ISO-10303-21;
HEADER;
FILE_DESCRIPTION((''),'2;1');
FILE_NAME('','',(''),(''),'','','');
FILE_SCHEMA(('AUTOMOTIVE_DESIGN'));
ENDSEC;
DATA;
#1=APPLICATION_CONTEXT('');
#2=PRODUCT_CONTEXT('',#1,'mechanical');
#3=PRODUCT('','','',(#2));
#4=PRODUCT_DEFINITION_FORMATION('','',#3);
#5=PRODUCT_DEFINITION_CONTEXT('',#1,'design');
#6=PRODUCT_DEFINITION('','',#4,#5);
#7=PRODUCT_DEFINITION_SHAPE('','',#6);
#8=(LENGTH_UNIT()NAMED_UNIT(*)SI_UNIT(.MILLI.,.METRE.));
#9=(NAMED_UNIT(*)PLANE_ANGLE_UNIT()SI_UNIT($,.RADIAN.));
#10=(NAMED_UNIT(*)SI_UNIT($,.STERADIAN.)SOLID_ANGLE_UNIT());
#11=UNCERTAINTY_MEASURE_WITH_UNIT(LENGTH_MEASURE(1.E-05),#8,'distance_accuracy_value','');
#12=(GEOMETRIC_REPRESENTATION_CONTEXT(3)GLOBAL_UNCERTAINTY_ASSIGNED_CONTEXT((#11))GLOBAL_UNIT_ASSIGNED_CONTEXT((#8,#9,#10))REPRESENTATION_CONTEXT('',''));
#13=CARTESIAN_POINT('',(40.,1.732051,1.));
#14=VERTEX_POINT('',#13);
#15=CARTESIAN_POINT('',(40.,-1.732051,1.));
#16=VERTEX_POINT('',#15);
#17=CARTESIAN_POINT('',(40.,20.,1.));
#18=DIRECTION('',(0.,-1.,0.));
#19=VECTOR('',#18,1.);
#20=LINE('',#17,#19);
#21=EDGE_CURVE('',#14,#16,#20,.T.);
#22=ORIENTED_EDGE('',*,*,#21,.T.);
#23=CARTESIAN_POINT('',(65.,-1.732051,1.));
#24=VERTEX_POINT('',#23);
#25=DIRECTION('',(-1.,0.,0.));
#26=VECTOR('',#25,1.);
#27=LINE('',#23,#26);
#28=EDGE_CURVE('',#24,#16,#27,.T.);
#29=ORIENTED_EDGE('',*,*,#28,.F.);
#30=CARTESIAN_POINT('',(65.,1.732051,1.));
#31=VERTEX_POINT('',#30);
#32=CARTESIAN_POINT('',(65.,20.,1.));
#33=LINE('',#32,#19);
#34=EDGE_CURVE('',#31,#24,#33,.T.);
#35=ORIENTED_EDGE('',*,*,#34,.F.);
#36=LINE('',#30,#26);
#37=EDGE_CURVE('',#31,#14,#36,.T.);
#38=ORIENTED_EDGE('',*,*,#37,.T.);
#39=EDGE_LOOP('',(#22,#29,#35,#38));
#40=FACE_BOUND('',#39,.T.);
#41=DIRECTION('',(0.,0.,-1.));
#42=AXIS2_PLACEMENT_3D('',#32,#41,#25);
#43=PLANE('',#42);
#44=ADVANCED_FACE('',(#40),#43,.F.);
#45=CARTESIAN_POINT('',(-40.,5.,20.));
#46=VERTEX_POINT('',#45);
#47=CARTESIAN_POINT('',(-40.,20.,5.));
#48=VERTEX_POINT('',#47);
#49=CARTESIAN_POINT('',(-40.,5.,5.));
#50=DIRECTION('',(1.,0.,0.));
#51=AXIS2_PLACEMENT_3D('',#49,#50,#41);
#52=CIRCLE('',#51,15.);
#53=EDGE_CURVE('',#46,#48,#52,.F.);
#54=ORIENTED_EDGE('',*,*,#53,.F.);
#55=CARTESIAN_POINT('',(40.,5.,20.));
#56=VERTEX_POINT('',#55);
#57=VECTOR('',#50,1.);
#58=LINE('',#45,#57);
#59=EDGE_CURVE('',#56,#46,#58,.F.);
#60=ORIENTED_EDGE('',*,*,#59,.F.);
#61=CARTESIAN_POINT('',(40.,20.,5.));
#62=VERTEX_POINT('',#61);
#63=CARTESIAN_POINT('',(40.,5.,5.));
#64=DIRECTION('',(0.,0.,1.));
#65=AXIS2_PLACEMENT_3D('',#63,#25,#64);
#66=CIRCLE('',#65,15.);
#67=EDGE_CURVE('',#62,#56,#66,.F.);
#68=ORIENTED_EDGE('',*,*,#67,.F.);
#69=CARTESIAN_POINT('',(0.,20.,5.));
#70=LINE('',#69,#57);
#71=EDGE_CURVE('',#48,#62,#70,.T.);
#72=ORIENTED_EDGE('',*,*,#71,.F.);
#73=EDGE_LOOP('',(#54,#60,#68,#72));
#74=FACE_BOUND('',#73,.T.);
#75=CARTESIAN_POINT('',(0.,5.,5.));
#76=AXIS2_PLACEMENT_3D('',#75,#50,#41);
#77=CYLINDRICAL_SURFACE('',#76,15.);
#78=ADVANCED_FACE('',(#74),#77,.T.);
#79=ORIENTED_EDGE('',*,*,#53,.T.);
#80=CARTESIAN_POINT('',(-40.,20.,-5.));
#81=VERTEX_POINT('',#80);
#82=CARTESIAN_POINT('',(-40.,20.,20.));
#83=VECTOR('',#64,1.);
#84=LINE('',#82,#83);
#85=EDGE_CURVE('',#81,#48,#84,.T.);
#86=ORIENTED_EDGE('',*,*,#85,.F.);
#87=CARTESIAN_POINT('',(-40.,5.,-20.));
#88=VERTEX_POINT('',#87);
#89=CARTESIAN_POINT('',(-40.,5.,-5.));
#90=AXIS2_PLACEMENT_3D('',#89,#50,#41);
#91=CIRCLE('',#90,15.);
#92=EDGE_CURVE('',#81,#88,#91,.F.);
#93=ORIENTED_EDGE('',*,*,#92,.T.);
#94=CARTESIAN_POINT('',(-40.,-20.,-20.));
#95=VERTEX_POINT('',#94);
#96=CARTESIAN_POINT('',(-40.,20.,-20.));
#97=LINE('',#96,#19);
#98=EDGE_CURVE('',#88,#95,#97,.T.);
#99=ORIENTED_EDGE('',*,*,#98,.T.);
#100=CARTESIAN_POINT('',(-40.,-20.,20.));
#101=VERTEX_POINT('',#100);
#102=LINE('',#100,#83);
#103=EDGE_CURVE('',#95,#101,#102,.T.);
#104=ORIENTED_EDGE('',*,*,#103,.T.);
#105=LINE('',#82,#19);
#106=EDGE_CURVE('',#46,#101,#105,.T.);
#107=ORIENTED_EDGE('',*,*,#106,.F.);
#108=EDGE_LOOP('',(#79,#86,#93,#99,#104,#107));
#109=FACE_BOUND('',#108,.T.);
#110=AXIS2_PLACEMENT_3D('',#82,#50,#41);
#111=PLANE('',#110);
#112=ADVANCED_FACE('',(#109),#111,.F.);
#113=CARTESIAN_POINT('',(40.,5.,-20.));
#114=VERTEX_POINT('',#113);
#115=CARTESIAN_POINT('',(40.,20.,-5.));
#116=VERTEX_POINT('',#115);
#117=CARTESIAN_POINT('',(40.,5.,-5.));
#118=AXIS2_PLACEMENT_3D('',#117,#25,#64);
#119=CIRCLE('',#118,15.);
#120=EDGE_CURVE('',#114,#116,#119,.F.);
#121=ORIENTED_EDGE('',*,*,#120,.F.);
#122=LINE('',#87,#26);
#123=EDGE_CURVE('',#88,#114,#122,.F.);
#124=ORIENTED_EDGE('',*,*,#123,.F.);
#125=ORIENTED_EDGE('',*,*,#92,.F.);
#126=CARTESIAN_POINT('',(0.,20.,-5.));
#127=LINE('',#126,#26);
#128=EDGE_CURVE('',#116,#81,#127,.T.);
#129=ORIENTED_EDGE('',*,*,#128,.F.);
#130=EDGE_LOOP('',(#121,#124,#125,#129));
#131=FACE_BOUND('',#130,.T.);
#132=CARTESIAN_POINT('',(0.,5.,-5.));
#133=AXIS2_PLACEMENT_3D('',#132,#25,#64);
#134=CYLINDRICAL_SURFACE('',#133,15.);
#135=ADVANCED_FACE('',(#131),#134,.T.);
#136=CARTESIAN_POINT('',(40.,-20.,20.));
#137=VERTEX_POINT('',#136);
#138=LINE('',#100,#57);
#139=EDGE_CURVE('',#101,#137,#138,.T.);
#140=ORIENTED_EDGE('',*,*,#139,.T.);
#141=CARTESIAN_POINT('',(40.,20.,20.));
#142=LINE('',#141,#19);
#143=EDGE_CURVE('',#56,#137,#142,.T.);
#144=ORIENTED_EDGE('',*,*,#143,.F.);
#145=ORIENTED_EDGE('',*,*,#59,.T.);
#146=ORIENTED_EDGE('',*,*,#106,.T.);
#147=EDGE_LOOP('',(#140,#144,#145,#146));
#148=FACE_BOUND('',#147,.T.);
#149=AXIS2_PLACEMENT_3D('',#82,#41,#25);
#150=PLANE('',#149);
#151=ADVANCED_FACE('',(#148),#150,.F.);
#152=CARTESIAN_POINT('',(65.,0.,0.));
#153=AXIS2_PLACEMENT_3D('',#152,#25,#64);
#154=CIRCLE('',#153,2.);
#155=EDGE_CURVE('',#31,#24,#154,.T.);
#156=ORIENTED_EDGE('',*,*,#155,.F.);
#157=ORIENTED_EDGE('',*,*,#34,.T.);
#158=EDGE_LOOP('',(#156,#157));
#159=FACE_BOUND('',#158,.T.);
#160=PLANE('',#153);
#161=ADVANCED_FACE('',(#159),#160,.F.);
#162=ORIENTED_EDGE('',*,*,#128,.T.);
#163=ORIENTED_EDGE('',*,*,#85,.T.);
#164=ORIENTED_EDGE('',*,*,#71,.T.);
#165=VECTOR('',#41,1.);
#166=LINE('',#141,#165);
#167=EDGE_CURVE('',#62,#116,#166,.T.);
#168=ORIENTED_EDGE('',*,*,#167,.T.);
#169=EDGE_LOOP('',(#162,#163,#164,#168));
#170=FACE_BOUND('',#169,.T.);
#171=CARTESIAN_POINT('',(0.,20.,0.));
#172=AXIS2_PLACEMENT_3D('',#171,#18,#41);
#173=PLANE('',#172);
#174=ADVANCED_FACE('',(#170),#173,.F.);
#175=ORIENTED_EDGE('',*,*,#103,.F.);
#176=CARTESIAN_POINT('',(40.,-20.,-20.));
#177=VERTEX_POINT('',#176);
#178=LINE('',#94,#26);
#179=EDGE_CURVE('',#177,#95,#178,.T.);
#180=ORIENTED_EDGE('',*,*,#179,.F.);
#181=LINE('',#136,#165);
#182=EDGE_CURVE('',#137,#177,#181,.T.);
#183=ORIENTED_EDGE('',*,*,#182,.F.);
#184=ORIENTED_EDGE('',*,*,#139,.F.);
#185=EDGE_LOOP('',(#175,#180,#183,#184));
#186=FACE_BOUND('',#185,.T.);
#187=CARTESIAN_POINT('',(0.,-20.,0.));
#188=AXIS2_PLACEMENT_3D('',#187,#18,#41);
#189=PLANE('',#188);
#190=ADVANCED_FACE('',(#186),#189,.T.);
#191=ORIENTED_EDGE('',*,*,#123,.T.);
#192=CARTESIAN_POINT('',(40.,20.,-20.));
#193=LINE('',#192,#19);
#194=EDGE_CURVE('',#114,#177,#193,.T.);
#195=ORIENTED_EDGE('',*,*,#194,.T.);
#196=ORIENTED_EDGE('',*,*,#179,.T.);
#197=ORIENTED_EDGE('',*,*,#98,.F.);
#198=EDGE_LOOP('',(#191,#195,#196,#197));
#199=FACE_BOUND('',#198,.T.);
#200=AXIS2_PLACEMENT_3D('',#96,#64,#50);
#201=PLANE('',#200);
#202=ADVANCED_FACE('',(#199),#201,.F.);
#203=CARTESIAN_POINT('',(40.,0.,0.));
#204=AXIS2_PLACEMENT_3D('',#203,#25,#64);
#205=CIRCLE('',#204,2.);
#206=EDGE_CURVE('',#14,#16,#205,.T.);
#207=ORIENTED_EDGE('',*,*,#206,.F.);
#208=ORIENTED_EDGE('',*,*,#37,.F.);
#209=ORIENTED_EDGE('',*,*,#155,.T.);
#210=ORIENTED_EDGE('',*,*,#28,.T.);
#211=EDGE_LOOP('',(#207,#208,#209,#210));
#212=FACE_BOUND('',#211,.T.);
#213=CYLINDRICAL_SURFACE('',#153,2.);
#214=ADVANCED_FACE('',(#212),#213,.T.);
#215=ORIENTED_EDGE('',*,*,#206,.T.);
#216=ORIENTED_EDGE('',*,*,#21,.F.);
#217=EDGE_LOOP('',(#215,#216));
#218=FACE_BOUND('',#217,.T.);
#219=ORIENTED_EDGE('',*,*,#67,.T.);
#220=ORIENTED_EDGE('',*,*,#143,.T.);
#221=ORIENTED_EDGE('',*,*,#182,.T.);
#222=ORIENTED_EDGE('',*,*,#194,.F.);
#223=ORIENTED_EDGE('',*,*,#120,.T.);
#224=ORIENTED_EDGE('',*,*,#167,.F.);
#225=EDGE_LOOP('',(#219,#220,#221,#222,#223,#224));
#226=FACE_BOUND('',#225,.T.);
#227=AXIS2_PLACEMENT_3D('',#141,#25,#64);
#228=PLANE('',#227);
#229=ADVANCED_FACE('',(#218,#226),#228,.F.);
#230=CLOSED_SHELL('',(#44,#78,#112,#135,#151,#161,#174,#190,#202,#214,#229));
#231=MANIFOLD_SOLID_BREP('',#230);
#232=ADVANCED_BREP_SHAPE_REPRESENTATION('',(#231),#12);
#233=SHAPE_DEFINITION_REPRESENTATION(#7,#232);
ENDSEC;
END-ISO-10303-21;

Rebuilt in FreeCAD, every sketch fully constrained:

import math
import FreeCAD as App
import Part
import Sketcher
from FreeCAD import Vector


def edges_at(feature, points):
    """Names of the edges that pass closest to the given points."""
    edges = feature.Shape.Edges
    near = lambda p: min(range(len(edges)), key=lambda i: edges[i].distToShape(Part.Vertex(*p))[0])
    return sorted({f"Edge{near(p) + 1}" for p in points})


def add_polygon(sketch, points):
    """Adds a closed chain of lines whose ends are joined by coincident constraints."""
    first, n = sketch.GeometryCount, len(points)
    for a, b in zip(points, points[1:] + points[:1]):
        sketch.addGeometry(Part.LineSegment(App.Vector(*a, 0), App.Vector(*b, 0)), False)
    for i in range(n):
        sketch.addConstraint(Sketcher.Constraint("Coincident", first + i, 2, first + (i + 1) % n, 1))

doc = App.newDocument("Part")
body = doc.addObject("PartDesign::Body", "Body")

sketch1 = body.newObject("Sketcher::SketchObject", "Sketch")
sketch1.AttachmentSupport = (doc.getObject("XZ_Plane"), [""])
sketch1.MapMode = "FlatFace"
add_polygon(sketch1, [(-40, -20), (-40, 20), (40, 20), (40, -20)])
sketch1.addConstraint([
    Sketcher.Constraint("Vertical", 0),
    Sketcher.Constraint("Horizontal", 1),
    Sketcher.Constraint("Vertical", 2),
    Sketcher.Constraint("Horizontal", 3),
    Sketcher.Constraint("Symmetric", 0, 2, 2, 2, -1, 1),
    Sketcher.Constraint("DistanceX", 1, 1, 1, 2, 80.0),
    Sketcher.Constraint("DistanceY", 0, 1, 0, 2, 40.0),
])
pad1 = body.newObject("PartDesign::Pad", "Pad")
pad1.Profile = sketch1
pad1.Length = 40
pad1.Midplane = True

sketch2 = body.newObject("Sketcher::SketchObject", "Sketch001")
sketch2.AttachmentSupport = (doc.getObject("YZ_Plane"), [""])
sketch2.MapMode = "FlatFace"
sketch2.AttachmentOffset = App.Placement(Vector(0, 0, 40), App.Rotation())
sketch2.addGeometry([
    Part.ArcOfCircle(Part.Circle(Vector(0, 0, 0), Vector(0, 0, 1), 2), math.radians(-90), math.radians(30)),
    Part.LineSegment(Vector(1.7, 1, 0), Vector(-1.7, 1, 0)),
    Part.ArcOfCircle(Part.Circle(Vector(0, 0, 0), Vector(0, 0, 1), 2), math.radians(150), math.radians(270)),
], False)
sketch2.addConstraint([
    Sketcher.Constraint("Coincident", 0, 2, 1, 1),
    Sketcher.Constraint("Coincident", 1, 2, 2, 1),
    Sketcher.Constraint("Tangent", 2, 2, 0, 1),
    Sketcher.Constraint("Horizontal", 1),
    Sketcher.Constraint("Coincident", 0, 3, -1, 1),
    Sketcher.Constraint("Equal", 0, 2),
    Sketcher.Constraint("PointOnObject", 2, 2, -2),
    Sketcher.Constraint("Radius", 0, 2.0),
    Sketcher.Constraint("DistanceY", -1, 1, 0, 2, 1.0),
])
pad2 = body.newObject("PartDesign::Pad", "Pad001")
pad2.Profile = sketch2
pad2.Length = 25
doc.recompute()

fillet = body.newObject("PartDesign::Fillet", "Fillet")
fillet.Base = (pad2, edges_at(pad2, [(0, 20, 20), (0, 20, -20)]))
fillet.Radius = 15

doc.recompute()
